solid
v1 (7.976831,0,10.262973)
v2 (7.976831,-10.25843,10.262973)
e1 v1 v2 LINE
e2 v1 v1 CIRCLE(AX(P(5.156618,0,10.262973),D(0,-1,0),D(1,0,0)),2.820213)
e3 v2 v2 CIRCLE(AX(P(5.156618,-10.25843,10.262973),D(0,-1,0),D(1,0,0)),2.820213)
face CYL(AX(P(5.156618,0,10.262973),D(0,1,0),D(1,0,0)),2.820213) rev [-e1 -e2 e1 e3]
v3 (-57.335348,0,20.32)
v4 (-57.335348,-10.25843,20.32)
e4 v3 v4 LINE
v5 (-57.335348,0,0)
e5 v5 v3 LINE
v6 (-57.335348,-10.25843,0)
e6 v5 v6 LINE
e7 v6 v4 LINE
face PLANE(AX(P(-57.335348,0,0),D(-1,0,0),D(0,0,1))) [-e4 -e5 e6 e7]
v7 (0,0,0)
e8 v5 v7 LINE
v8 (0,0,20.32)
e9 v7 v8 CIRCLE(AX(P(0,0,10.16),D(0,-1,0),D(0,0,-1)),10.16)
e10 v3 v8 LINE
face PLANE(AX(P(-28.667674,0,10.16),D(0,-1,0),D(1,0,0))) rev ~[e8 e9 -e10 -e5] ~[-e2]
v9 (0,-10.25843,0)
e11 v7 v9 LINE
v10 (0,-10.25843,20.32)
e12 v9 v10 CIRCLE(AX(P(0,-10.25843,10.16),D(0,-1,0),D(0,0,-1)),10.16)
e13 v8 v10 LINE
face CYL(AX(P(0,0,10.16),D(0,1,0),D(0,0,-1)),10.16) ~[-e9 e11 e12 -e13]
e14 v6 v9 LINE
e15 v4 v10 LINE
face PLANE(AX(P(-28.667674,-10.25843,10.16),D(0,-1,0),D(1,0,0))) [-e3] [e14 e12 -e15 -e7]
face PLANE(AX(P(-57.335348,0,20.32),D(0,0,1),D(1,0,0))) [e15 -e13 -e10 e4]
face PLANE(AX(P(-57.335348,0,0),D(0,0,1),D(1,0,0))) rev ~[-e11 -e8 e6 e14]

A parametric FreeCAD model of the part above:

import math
import FreeCAD as App
import Part
import Sketcher
from FreeCAD import Vector
Q = App.Units.Quantity

doc = App.newDocument("Part")
body = doc.addObject("PartDesign::Body", "Body")

sketch1 = body.newObject("Sketcher::SketchObject", "Sketch")
sketch1.AttachmentSupport = (doc.getObject("XZ_Plane"), [""])
sketch1.MapMode = "FlatFace"
sketch1.addGeometry(Part.LineSegment(Vector(-57.3, 20.3, 0), Vector(-57.3, 0, 0)), False)
sketch1.addGeometry(Part.LineSegment(Vector(-57.3, 0, 0), Vector(0, 0, 0)), False)
sketch1.addGeometry(Part.ArcOfCircle(Part.Circle(Vector(0, 10.2, 0), Vector(0, 0, 1), 10.2), math.radians(-90), math.radians(90)), False)
sketch1.addGeometry(Part.LineSegment(Vector(0, 20.3, 0), Vector(-57.3, 20.3, 0)), False)
sketch1.addGeometry(Part.Circle(Vector(5.2, 10.3, 0), Vector(0, 0, 1), 2.8), False)
sketch1.addConstraint(Sketcher.Constraint("Coincident", 0, 2, 1, 1))
sketch1.addConstraint(Sketcher.Constraint("Tangent", 1, 2, 2, 1))
sketch1.addConstraint(Sketcher.Constraint("Tangent", 2, 2, 3, 1))
sketch1.addConstraint(Sketcher.Constraint("Coincident", 3, 2, 0, 1))
sketch1.addConstraint(Sketcher.Constraint("Vertical", 0))
sketch1.addConstraint(Sketcher.Constraint("Horizontal", 1))
sketch1.addConstraint(Sketcher.Constraint("Horizontal", 3))
sketch1.addConstraint(Sketcher.Constraint("Coincident", 1, 2, -1, 1))
sketch1.addConstraint(Sketcher.Constraint("Radius", 2, Q("0.4 in")))
sketch1.addConstraint(Sketcher.Constraint("Diameter", 4, 5.640426))
sketch1.addConstraint(Sketcher.Constraint("DistanceX", 1, 1, 1, 2, 57.335348))
sketch1.addConstraint(Sketcher.Constraint("DistanceX", -1, 1, 4, 3, 5.156618))
sketch1.addConstraint(Sketcher.Constraint("DistanceY", -1, 1, 4, 3, 10.262973))
pad1 = body.newObject("PartDesign::Pad", "Pad")
pad1.Profile = sketch1
pad1.Length = 10.25843

doc.recompute()
